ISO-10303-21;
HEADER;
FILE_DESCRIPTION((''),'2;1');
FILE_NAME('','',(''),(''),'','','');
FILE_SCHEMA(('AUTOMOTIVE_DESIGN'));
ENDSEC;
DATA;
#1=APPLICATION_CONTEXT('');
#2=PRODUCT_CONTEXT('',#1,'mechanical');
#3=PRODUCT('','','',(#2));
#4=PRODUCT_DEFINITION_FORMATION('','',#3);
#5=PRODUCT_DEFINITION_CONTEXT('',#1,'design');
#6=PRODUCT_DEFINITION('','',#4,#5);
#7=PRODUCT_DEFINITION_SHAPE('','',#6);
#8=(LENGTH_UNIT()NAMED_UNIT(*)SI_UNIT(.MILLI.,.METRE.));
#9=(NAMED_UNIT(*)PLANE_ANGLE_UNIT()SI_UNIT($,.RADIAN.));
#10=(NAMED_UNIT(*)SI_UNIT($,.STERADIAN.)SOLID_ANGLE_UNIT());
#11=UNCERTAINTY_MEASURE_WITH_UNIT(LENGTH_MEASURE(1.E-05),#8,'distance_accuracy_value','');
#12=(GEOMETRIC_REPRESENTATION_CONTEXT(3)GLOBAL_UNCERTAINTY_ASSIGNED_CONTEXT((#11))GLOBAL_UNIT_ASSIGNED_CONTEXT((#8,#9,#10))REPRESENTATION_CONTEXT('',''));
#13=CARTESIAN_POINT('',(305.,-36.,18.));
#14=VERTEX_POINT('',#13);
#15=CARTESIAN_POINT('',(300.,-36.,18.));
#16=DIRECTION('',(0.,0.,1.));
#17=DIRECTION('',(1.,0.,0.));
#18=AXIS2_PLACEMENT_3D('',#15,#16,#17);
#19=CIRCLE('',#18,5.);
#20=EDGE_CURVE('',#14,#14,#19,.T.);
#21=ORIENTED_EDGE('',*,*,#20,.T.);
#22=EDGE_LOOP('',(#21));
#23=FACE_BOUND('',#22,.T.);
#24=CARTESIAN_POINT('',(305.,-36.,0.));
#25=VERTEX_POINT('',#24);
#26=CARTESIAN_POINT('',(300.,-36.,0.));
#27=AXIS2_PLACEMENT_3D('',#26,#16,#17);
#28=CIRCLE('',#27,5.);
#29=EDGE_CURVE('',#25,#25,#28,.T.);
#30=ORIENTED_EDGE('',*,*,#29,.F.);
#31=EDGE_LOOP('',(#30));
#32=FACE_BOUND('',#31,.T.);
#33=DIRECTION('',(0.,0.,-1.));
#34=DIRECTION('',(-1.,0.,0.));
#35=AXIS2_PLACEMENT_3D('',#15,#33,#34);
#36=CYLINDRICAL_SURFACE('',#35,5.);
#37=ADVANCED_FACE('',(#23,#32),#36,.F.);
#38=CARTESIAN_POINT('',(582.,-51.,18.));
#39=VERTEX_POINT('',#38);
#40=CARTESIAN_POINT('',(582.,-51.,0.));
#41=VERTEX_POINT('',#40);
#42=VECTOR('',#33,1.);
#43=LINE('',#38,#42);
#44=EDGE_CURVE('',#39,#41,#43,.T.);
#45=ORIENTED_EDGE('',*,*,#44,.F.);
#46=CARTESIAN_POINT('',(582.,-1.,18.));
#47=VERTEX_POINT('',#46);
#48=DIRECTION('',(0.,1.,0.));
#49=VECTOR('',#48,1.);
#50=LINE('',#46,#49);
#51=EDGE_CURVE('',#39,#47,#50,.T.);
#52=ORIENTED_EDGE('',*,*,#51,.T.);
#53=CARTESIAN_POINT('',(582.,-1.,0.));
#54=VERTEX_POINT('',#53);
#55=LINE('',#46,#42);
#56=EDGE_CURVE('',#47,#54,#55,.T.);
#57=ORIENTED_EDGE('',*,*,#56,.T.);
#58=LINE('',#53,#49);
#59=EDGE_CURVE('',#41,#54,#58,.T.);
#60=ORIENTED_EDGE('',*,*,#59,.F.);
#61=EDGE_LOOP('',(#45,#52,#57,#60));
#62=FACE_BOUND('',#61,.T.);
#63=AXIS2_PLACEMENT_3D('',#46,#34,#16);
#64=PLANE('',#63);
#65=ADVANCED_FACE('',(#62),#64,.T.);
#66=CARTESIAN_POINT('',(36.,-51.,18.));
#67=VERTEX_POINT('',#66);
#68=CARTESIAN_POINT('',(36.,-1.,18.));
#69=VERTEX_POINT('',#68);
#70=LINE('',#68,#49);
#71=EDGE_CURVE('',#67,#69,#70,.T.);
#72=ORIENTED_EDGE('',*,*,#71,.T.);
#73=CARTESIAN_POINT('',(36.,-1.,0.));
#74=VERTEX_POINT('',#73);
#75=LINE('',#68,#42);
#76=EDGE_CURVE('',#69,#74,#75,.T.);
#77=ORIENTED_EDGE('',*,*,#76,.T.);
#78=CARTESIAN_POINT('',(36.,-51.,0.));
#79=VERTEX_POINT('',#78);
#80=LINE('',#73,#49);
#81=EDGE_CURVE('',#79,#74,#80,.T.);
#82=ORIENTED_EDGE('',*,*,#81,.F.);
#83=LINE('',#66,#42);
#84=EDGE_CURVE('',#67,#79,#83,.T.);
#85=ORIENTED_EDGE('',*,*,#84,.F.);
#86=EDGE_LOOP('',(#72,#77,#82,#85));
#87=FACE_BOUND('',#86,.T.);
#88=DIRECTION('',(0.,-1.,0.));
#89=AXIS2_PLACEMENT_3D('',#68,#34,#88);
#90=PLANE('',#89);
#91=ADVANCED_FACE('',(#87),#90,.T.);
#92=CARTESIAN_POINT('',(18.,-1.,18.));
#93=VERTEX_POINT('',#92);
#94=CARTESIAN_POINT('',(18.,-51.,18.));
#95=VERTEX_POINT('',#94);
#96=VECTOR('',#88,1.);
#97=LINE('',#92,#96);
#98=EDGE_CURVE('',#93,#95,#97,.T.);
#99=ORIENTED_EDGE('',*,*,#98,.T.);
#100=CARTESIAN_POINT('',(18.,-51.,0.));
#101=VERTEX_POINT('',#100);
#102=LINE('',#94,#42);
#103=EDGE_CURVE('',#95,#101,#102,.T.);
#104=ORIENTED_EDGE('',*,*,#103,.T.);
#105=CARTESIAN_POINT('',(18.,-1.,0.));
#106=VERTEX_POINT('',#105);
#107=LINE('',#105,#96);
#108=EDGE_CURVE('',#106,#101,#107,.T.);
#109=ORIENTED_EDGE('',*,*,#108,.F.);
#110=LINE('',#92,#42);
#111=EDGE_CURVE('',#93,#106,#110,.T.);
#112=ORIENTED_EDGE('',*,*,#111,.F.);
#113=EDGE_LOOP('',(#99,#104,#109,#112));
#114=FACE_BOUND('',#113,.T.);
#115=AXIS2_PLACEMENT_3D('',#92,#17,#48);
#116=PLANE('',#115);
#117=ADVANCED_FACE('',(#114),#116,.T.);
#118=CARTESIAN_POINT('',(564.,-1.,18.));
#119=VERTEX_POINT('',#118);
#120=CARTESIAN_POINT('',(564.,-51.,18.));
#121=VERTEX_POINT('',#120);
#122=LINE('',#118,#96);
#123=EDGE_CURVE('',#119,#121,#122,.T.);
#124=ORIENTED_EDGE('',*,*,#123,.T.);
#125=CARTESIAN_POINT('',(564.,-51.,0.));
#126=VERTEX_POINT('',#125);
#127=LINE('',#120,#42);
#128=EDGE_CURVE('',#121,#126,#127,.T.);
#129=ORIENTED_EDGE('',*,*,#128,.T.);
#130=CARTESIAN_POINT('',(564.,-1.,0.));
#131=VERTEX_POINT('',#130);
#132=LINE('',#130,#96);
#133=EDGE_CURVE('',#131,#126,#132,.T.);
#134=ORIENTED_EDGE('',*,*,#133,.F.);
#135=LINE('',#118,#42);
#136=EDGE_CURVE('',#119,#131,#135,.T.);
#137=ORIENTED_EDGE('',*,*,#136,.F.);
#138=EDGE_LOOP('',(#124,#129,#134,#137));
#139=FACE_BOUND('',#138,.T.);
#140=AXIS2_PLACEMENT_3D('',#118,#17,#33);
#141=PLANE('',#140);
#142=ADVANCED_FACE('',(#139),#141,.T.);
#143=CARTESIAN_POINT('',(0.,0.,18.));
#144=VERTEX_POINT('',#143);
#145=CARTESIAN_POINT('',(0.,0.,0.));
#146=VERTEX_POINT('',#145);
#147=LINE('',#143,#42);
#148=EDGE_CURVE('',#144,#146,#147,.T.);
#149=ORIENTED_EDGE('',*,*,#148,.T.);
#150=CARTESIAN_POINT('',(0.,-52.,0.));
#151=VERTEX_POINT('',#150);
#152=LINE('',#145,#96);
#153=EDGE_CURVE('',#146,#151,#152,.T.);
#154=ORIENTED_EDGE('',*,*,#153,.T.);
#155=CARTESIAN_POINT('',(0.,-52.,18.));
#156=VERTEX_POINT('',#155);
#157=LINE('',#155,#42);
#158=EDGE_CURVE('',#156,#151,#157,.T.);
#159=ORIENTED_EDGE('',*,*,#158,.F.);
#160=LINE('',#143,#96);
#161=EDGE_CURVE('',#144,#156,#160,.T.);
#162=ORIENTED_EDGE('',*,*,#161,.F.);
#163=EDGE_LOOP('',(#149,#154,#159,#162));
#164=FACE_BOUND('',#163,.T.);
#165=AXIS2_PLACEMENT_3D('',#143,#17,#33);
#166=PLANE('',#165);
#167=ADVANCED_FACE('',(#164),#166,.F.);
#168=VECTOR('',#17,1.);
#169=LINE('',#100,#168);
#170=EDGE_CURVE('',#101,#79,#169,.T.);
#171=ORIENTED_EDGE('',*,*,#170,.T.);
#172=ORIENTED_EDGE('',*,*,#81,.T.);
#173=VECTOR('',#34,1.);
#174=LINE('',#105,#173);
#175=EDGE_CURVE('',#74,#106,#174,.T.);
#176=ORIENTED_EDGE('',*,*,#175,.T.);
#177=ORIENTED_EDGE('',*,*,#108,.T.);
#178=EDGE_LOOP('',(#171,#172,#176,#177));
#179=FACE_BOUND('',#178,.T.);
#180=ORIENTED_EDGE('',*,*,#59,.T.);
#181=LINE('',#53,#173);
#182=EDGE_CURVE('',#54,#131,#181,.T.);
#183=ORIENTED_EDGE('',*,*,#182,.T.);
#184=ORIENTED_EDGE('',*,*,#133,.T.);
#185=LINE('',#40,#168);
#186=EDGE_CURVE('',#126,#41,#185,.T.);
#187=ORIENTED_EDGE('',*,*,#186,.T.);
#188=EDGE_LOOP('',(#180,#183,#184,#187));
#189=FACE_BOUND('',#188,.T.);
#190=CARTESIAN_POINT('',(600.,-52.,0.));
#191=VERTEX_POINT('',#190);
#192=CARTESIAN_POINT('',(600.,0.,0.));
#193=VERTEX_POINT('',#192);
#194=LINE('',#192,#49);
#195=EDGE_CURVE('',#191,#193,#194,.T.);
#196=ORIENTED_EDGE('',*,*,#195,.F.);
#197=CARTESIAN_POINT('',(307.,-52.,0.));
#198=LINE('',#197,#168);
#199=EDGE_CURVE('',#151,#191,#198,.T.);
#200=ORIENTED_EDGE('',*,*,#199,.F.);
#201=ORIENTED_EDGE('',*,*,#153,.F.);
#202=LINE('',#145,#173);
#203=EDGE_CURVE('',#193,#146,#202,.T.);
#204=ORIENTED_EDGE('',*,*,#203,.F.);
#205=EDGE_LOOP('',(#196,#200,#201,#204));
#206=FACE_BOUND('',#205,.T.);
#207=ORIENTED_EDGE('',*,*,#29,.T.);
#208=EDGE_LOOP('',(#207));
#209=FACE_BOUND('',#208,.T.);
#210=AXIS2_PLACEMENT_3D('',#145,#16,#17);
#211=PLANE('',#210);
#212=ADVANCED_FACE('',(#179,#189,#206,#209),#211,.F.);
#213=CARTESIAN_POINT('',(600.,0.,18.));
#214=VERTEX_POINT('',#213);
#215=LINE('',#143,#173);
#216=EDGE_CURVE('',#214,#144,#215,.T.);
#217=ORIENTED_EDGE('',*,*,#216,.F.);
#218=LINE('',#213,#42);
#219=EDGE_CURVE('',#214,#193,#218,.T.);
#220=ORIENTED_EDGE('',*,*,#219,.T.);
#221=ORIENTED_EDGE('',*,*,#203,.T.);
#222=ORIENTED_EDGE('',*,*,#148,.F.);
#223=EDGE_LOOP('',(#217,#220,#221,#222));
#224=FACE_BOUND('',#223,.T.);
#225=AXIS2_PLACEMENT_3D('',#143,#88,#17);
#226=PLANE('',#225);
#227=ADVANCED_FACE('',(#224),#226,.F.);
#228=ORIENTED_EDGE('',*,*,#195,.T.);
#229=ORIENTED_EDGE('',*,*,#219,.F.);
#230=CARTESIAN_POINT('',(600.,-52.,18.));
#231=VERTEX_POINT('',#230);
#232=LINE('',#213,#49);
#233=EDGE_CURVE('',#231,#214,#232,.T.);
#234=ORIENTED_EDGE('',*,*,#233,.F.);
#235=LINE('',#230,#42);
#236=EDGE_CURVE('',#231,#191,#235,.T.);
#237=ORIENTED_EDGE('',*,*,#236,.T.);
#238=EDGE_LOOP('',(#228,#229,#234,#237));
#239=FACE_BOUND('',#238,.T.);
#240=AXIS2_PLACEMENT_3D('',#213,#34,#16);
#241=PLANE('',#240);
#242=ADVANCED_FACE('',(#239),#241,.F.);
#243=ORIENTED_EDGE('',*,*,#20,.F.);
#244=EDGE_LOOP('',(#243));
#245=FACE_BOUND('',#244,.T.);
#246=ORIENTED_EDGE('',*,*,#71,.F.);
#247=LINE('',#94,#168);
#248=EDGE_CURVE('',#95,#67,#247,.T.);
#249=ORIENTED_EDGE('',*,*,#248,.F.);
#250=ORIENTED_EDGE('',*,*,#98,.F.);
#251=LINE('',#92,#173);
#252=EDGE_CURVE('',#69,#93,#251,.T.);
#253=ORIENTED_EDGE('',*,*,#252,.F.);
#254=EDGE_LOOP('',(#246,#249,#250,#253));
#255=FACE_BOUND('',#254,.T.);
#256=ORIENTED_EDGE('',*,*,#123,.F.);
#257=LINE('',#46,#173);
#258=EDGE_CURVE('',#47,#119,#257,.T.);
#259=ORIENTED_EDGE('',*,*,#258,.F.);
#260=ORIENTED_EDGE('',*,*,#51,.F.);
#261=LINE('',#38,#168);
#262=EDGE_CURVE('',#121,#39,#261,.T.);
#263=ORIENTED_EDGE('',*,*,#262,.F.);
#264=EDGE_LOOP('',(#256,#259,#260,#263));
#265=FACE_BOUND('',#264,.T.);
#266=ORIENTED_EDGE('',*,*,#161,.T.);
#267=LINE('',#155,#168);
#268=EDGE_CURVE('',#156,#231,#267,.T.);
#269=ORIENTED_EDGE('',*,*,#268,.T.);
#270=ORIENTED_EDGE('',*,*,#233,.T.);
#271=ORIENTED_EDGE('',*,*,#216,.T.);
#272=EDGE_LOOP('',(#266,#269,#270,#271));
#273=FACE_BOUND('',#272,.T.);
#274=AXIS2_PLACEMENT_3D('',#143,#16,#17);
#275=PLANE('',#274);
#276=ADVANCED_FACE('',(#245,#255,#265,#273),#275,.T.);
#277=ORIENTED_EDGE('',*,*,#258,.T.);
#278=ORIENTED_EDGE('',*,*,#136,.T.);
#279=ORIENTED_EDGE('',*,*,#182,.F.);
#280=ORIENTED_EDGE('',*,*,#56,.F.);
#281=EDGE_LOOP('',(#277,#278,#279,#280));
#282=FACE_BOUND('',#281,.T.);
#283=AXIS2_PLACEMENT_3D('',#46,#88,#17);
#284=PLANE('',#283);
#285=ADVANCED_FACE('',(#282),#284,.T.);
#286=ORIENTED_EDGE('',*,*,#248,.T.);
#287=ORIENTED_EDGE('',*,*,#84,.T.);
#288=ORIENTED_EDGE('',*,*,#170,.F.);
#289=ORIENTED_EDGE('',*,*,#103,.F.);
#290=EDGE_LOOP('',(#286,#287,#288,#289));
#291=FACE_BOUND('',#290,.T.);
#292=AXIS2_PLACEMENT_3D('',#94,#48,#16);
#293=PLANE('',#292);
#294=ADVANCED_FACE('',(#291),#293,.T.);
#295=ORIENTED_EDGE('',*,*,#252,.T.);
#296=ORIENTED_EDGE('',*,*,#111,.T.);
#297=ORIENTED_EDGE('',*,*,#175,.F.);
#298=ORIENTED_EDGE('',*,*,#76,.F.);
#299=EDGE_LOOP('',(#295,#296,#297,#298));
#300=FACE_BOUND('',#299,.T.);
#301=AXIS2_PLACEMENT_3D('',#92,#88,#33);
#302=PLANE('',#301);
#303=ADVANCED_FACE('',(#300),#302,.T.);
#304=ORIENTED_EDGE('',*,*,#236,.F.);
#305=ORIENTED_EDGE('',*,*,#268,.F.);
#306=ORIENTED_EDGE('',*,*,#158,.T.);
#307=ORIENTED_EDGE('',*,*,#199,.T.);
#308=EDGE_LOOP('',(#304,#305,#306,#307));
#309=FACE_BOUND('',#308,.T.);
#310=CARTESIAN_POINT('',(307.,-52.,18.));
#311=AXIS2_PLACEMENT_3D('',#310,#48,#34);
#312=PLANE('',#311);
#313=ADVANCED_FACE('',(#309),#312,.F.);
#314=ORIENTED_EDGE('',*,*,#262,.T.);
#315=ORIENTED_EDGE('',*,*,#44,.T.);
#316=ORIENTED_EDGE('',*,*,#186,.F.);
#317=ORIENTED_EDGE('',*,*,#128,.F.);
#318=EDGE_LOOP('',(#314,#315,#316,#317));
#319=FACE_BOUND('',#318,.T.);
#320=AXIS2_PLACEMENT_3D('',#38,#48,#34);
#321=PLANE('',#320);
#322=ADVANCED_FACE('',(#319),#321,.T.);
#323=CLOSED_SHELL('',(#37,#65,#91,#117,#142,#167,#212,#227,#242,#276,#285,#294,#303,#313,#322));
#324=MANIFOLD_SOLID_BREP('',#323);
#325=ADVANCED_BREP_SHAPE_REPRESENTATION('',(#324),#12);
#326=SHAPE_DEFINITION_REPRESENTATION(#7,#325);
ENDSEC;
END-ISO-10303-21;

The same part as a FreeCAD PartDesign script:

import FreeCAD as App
import Part
import Sketcher
from FreeCAD import Vector
Q = App.Units.Quantity


def add_polygon(sketch, points):
    """Adds a closed chain of lines whose ends are joined by coincident constraints."""
    first, n = sketch.GeometryCount, len(points)
    for a, b in zip(points, points[1:] + points[:1]):
        sketch.addGeometry(Part.LineSegment(App.Vector(*a, 0), App.Vector(*b, 0)), False)
    for i in range(n):
        sketch.addConstraint(Sketcher.Constraint("Coincident", first + i, 2, first + (i + 1) % n, 1))

doc = App.newDocument("Part")
body = doc.addObject("PartDesign::Body", "Body")

sketch1 = body.newObject("Sketcher::SketchObject", "Sketch")
sketch1.AttachmentSupport = (doc.getObject("XY_Plane"), [""])
sketch1.MapMode = "FlatFace"
add_polygon(sketch1, [(600, 0), (0, 0), (0, -52), (600, -52)])
sketch1.addGeometry(Part.Circle(Vector(300, -36, 0), Vector(0, 0, 1), 5), False)
add_polygon(sketch1, [(564, -51), (564, -1), (582, -1), (582, -51)])
add_polygon(sketch1, [(18, -51), (18, -1), (36, -1), (36, -51)])
sketch1.addConstraint(Sketcher.Constraint("Horizontal", 0))
sketch1.addConstraint(Sketcher.Constraint("Vertical", 1))
sketch1.addConstraint(Sketcher.Constraint("Horizontal", 2))
sketch1.addConstraint(Sketcher.Constraint("Vertical", 3))
sketch1.addConstraint(Sketcher.Constraint("Vertical", 5))
sketch1.addConstraint(Sketcher.Constraint("Horizontal", 6))
sketch1.addConstraint(Sketcher.Constraint("Vertical", 7))
sketch1.addConstraint(Sketcher.Constraint("Horizontal", 8))
sketch1.addConstraint(Sketcher.Constraint("Vertical", 9))
sketch1.addConstraint(Sketcher.Constraint("Horizontal", 10))
sketch1.addConstraint(Sketcher.Constraint("Vertical", 11))
sketch1.addConstraint(Sketcher.Constraint("Horizontal", 12))
sketch1.addConstraint(Sketcher.Constraint("Coincident", 0, 2, -1, 1))
sketch1.addConstraint(Sketcher.Constraint("Horizontal", 6, 2, 9, 2))
sketch1.addConstraint(Sketcher.Constraint("Horizontal", 8, 2, 11, 2))
sketch1.addConstraint(Sketcher.Constraint("Equal", 8, 10))
sketch1.addConstraint(Sketcher.Constraint("Diameter", 4, Q("10 mm")))
sketch1.addConstraint(Sketcher.Constraint("DistanceX", 0, 2, 0, 1, Q("600 mm")))
sketch1.addConstraint(Sketcher.Constraint("DistanceX", 6, 1, 6, 2, Q("18 mm")))
sketch1.addConstraint(Sketcher.Constraint("DistanceY", 1, 2, 1, 1, Q("52 mm")))
sketch1.addConstraint(Sketcher.Constraint("DistanceY", 5, 1, 5, 2, Q("50 mm")))
sketch1.addConstraint(Sketcher.Constraint("DistanceX", -1, 1, 4, 3, Q("300 mm")))
sketch1.addConstraint(Sketcher.Constraint("DistanceY", 4, 3, -1, 1, Q("36 mm")))
sketch1.addConstraint(Sketcher.Constraint("DistanceX", -1, 1, 5, 2, Q("564 mm")))
sketch1.addConstraint(Sketcher.Constraint("DistanceY", 5, 2, -1, 1, Q("1 mm")))
sketch1.addConstraint(Sketcher.Constraint("DistanceX", -1, 1, 9, 2, Q("18 mm")))
pad1 = body.newObject("PartDesign::Pad", "Pad")
pad1.Profile = sketch1
pad1.Length = 18

doc.recompute()
